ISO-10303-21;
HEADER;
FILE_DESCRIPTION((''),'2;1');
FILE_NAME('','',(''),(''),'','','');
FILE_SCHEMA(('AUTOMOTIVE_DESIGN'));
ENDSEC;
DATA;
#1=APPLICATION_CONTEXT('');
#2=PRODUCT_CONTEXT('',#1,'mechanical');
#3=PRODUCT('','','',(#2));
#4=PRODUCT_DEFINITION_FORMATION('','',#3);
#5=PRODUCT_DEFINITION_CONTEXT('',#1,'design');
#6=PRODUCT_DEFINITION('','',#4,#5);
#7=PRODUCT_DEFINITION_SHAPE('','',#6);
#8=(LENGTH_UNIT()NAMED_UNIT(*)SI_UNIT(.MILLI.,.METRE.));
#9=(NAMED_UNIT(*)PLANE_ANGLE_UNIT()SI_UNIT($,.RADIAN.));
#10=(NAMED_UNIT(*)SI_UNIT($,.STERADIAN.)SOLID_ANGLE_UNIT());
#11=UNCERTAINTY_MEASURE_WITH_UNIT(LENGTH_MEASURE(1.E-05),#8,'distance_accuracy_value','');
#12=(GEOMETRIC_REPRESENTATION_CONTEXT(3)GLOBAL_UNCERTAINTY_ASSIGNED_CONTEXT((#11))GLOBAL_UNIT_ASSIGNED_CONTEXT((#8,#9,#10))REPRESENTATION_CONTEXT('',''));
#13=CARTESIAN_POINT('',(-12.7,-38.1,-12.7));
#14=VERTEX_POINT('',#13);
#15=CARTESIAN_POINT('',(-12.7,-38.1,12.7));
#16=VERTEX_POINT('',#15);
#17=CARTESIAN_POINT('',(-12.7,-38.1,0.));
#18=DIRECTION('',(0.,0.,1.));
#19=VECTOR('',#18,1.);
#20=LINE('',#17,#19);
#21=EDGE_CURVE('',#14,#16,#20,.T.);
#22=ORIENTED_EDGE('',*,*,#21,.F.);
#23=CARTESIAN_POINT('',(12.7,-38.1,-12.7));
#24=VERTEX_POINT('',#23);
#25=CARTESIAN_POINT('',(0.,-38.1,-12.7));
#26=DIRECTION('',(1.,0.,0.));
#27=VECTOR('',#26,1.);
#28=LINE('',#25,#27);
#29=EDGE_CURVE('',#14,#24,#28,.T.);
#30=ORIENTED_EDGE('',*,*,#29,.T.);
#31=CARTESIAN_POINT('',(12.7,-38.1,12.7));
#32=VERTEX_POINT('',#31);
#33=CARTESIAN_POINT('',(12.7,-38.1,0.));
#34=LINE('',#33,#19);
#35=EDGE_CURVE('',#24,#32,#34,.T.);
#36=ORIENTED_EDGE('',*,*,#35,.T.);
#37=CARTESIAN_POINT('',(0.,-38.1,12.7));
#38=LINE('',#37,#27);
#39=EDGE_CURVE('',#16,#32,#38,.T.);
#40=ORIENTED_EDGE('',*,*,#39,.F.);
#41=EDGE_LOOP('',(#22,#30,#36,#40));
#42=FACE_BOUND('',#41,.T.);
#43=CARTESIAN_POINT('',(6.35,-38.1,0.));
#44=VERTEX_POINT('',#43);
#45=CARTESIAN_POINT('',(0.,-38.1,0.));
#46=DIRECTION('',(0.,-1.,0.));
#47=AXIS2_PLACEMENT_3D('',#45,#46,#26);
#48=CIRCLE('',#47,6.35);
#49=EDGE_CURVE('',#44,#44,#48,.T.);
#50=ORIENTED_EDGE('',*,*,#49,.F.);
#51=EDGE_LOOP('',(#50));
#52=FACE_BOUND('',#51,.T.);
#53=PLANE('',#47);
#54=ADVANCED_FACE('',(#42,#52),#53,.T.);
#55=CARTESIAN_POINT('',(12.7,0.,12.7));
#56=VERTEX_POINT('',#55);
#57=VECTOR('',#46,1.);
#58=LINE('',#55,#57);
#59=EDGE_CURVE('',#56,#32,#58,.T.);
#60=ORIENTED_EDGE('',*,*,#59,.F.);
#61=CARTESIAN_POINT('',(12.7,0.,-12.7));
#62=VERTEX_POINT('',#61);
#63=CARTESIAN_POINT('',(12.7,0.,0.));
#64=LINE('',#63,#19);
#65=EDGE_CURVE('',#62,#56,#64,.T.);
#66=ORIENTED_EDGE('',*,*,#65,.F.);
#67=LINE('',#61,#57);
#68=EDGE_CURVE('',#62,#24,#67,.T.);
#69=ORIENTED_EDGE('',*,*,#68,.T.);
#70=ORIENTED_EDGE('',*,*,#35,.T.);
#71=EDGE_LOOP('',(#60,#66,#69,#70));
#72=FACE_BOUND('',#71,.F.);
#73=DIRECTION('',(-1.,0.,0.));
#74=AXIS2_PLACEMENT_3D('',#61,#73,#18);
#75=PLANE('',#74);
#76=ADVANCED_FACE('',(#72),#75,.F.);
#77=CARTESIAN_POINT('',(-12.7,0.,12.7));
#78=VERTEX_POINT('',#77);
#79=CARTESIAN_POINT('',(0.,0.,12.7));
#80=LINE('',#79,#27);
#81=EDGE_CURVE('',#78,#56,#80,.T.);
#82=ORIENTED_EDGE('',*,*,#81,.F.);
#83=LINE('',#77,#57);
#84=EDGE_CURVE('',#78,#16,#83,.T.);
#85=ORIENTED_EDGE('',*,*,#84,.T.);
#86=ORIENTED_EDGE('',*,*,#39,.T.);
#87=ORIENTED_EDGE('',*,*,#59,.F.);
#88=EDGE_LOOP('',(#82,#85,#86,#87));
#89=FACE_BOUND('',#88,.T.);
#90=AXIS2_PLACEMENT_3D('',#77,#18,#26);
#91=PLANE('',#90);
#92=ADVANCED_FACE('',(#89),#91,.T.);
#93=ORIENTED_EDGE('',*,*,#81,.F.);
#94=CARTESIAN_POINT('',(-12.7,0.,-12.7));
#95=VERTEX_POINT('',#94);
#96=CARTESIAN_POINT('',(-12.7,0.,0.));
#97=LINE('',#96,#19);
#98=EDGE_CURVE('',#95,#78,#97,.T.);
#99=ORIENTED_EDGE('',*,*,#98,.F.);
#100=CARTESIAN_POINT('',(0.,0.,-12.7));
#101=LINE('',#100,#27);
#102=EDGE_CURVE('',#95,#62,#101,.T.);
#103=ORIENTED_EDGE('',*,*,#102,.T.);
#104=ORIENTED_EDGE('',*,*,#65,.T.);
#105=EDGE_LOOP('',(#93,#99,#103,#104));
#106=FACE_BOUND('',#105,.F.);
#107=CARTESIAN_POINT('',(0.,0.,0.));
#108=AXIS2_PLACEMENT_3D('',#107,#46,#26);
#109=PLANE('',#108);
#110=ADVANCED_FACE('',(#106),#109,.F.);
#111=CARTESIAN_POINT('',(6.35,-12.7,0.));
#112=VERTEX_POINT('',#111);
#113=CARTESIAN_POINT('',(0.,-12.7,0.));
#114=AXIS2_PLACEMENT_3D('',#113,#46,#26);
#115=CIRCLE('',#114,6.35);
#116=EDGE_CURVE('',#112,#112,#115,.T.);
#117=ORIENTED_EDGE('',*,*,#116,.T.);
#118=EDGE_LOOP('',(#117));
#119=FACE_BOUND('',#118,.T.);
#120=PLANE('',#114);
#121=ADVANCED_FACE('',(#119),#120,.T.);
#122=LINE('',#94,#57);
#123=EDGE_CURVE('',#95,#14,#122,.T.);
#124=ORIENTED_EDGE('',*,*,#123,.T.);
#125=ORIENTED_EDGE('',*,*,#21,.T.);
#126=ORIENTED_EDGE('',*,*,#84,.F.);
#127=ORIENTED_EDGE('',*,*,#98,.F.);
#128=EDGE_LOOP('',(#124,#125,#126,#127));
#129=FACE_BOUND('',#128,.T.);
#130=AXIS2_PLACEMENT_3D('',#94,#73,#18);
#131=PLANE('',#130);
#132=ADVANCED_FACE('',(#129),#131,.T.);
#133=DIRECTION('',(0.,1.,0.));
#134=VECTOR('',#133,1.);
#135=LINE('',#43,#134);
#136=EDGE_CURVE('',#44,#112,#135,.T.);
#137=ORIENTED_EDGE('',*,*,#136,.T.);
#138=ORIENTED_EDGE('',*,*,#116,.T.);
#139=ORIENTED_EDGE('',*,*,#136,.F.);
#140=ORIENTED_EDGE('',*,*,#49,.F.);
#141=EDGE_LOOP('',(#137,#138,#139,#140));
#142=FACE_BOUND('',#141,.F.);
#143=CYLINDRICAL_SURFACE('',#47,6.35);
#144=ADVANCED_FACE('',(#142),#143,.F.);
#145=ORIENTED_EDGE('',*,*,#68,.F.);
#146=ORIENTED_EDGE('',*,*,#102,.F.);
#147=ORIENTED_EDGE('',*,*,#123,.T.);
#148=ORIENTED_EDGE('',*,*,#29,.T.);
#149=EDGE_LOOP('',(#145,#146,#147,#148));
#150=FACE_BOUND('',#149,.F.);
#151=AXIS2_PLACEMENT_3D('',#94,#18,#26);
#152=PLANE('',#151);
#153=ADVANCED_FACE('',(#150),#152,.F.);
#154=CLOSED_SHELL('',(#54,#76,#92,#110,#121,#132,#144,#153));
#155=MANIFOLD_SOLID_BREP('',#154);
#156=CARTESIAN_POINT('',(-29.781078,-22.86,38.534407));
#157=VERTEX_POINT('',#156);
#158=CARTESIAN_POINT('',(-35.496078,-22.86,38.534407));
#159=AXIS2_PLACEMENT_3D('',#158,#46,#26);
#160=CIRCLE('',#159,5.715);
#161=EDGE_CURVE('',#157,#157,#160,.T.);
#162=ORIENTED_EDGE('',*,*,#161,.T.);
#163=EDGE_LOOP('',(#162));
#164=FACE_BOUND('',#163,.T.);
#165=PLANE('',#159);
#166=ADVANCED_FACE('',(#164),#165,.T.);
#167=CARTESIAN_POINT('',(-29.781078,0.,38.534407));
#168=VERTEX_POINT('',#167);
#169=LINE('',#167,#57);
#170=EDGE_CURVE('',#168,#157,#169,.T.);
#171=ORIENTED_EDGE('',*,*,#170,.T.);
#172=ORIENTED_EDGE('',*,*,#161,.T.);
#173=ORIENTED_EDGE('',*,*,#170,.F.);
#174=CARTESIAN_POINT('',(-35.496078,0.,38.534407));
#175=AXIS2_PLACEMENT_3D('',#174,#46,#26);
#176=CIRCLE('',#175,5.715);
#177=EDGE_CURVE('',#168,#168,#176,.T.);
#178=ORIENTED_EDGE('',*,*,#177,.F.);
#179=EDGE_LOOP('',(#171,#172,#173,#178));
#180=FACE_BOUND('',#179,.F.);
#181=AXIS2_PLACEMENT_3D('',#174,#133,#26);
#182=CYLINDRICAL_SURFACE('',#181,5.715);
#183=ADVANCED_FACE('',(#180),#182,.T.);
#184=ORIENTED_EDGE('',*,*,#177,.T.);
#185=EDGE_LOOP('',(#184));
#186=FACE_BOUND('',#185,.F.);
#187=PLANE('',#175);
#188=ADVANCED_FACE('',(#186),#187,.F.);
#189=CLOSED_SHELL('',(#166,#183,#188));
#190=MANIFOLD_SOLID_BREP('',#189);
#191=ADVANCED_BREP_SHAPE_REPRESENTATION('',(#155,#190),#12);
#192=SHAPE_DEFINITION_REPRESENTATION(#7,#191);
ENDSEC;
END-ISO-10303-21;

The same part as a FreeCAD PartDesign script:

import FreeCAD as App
import Part
import Sketcher
Q = App.Units.Quantity


def add_polygon(sketch, points):
    """Adds a closed chain of lines whose ends are joined by coincident constraints."""
    first, n = sketch.GeometryCount, len(points)
    for a, b in zip(points, points[1:] + points[:1]):
        sketch.addGeometry(Part.LineSegment(App.Vector(*a, 0), App.Vector(*b, 0)), False)
    for i in range(n):
        sketch.addConstraint(Sketcher.Constraint("Coincident", first + i, 2, first + (i + 1) % n, 1))

doc = App.newDocument("Part")
body = doc.addObject("PartDesign::Body", "Body")

# Sketch on XZ plane
sketch1 = body.newObject("Sketcher::SketchObject", "Sketch")
sketch1.AttachmentSupport = (doc.getObject("XZ_Plane"), [""])
sketch1.MapMode = "FlatFace"
add_polygon(sketch1, [(-13, 13), (-13, -13), (13, -13), (13, 13)])  # lines 0-3
sketch1.addConstraint(Sketcher.Constraint("Vertical", 0))
sketch1.addConstraint(Sketcher.Constraint("Horizontal", 1))
sketch1.addConstraint(Sketcher.Constraint("Vertical", 2))
sketch1.addConstraint(Sketcher.Constraint("Horizontal", 3))
sketch1.addConstraint(Sketcher.Constraint("Symmetric", 0, 2, 2, 2, -1, 1))
sketch1.addConstraint(Sketcher.Constraint("Equal", 3, 0))
sketch1.addConstraint(Sketcher.Constraint("DistanceX", 1, 1, 1, 2, Q("1 in")))
pad1 = body.newObject("PartDesign::Pad", "Pad")
pad1.Profile = sketch1
pad1.Length = Q("1.5 in")

# Sketch on XZ plane
sketch2 = body.newObject("Sketcher::SketchObject", "Sketch001")
sketch2.AttachmentSupport = (doc.getObject("XZ_Plane"), [""])
sketch2.MapMode = "FlatFace"
sketch2.AttachmentOffset = App.Placement(App.Vector(0, 0, 1.5 * 25.4), App.Rotation())
sketch2.addGeometry(Part.Circle(App.Vector(0, 0, 0), App.Vector(0, 0, 1), 6), False)
sketch2.addConstraint(Sketcher.Constraint("Coincident", 0, 3, -1, 1))
sketch2.addConstraint(Sketcher.Constraint("Diameter", 0, Q("0.5 in")))
pocket1 = body.newObject("PartDesign::Pocket", "Pocket")
pocket1.Profile = sketch2
pocket1.Length = Q("1 in")
body2 = doc.addObject("PartDesign::Body", "Body001")

# Sketch on XZ plane
sketch3 = body2.newObject("Sketcher::SketchObject", "Sketch002")
sketch3.AttachmentSupport = (doc.getObject("XZ_Plane001"), [""])
sketch3.MapMode = "FlatFace"
sketch3.addGeometry(Part.Circle(App.Vector(-35, 39, 0), App.Vector(0, 0, 1), 6), False)
sketch3.addConstraint(Sketcher.Constraint("Diameter", 0, Q("0.45 in")))
sketch3.addConstraint(Sketcher.Constraint("DistanceX", 0, 3, -1, 1, 35.496078))
sketch3.addConstraint(Sketcher.Constraint("DistanceY", -1, 1, 0, 3, 38.534407))
pad2 = body2.newObject("PartDesign::Pad", "Pad001")
pad2.Profile = sketch3
pad2.Length = Q("0.9 in")

doc.recompute()
